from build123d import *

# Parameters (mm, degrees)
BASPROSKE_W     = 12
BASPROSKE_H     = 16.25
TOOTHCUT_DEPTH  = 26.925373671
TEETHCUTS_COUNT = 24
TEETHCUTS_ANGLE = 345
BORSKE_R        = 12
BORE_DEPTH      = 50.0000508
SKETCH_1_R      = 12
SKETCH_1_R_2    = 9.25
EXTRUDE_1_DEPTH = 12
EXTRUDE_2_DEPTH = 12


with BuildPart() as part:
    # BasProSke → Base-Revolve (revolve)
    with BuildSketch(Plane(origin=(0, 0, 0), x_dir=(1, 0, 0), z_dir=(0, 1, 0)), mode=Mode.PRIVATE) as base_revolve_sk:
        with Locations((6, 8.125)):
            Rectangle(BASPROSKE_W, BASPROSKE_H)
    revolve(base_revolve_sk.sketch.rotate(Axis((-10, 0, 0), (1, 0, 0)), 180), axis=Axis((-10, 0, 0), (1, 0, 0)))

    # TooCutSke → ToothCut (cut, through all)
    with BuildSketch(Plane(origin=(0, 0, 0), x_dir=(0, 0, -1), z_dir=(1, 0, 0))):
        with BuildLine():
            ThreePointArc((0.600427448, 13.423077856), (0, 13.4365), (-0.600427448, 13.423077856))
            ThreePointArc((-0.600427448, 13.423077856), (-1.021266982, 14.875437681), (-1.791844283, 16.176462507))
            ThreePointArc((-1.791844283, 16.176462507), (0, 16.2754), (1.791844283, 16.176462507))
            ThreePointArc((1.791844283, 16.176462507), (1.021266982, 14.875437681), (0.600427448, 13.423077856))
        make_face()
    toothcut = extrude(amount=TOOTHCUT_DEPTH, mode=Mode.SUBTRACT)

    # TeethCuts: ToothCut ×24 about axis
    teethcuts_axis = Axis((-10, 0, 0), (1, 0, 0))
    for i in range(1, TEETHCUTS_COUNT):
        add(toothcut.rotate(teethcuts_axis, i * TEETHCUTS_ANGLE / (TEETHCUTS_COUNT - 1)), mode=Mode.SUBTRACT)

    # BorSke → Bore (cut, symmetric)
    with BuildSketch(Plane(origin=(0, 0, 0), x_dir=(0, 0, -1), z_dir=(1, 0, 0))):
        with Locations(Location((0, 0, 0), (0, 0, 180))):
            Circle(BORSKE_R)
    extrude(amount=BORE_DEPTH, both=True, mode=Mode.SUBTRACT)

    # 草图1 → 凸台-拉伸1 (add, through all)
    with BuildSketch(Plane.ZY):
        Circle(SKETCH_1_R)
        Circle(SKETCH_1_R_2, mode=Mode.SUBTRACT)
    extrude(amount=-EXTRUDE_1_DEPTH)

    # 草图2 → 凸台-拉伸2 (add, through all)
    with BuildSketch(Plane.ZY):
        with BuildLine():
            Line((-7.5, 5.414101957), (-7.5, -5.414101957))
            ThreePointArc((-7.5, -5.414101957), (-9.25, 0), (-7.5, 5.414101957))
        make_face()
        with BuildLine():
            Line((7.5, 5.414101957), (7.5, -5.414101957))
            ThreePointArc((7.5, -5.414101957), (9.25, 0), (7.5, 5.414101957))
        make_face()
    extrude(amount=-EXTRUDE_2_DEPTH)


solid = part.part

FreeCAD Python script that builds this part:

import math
import FreeCAD as App
import Part
import Sketcher
from FreeCAD import Vector
Q = App.Units.Quantity

doc = App.newDocument("Part")
body = doc.addObject("PartDesign::Body", "Body")

sketch1 = doc.addObject("Sketcher::SketchObject", "Sketch")
body.addObject(sketch1)
sketch1.AttachmentSupport = (doc.XZ_Plane, [""])
sketch1.MapMode = "FlatFace"
sketch1.addGeometry([
    Part.LineSegment(Vector(0, -16, 0), Vector(0, 0, 0)),
    Part.LineSegment(Vector(0, 0, 0), Vector(12, 0, 0)),
    Part.LineSegment(Vector(12, 0, 0), Vector(12, -16, 0)),
    Part.LineSegment(Vector(12, -16, 0), Vector(0, -16, 0)),
], False)
sketch1.addConstraint([
    Sketcher.Constraint("Coincident", 0, 2, 1, 1),
    Sketcher.Constraint("Coincident", 1, 2, 2, 1),
    Sketcher.Constraint("Coincident", 2, 2, 3, 1),
    Sketcher.Constraint("Coincident", 3, 2, 0, 1),
    Sketcher.Constraint("Vertical", 0),
    Sketcher.Constraint("Horizontal", 1),
    Sketcher.Constraint("Vertical", 2),
    Sketcher.Constraint("Horizontal", 3),
    Sketcher.Constraint("Coincident", 0, 2, -1, 1),
    Sketcher.Constraint("DistanceX", 1, 1, 1, 2, Q("12 mm")),
    Sketcher.Constraint("DistanceY", 0, 1, 0, 2, Q("16.25 mm")),
])
revolution = doc.addObject("PartDesign::Revolution", "Revolution")
body.addObject(revolution)
revolution.Profile = sketch1
revolution.ReferenceAxis = (sketch1, ["H_Axis"])
revolution.Angle = 360

sketch2 = doc.addObject("Sketcher::SketchObject", "Sketch001")
body.addObject(sketch2)
sketch2.AttachmentSupport = (doc.YZ_Plane, [""])
sketch2.MapMode = "FlatFace"
sketch2.addGeometry([
    Part.ArcOfCircle(Part.Circle(Vector(0, 0, 0), Vector(0, 0, 1), 13.4), math.radians(-2.56), math.radians(2.56)),
    Part.ArcOfCircle(Part.Circle(Vector(12.5, -6.5, 0), Vector(0, 0, 1), 6), math.radians(52), math.radians(81)),
    Part.ArcOfCircle(Part.Circle(Vector(0, 0, 0), Vector(0, 0, 1), 16.3), math.radians(-6.32), math.radians(6.32)),
    Part.ArcOfCircle(Part.Circle(Vector(12.5, 6.5, 0), Vector(0, 0, 1), 6), math.radians(-81), math.radians(-52)),
], False)
sketch2.addConstraint([
    Sketcher.Constraint("Coincident", 0, 1, 1, 2),
    Sketcher.Constraint("Coincident", 1, 1, 2, 1),
    Sketcher.Constraint("Coincident", 2, 2, 3, 2),
    Sketcher.Constraint("Coincident", 3, 1, 0, 2),
    Sketcher.Constraint("Coincident", 0, 3, -1, 1),
    Sketcher.Constraint("Coincident", 2, 3, -1, 1),
    Sketcher.Constraint("Equal", 1, 3),
    Sketcher.Constraint("Symmetric", 1, 3, 3, 3, -1),
    Sketcher.Constraint("Radius", 1, Q("6 mm")),
    Sketcher.Constraint("Radius", 0, Q("13.4365 mm")),
    Sketcher.Constraint("Radius", 2, Q("16.2754 mm")),
    Sketcher.Constraint("DistanceY", 0, 1, 3, 3, Q("7.12828 mm")),
    Sketcher.Constraint("DistanceX", 1, 3, 1, 1, Q("3.683779 mm")),
])
pocket1 = doc.addObject("PartDesign::Pocket", "Pocket")
body.addObject(pocket1)
pocket1.Profile = sketch2
pocket1.Type = "ThroughAll"
pocket1.Reversed = True
doc.recompute()

polarpattern = doc.addObject("PartDesign::PolarPattern", "PolarPattern")
body.addObject(polarpattern)
polarpattern.Originals = [pocket1]
polarpattern.Axis = (doc.X_Axis, [""])
polarpattern.Angle = 360
polarpattern.Occurrences = 24
body.Tip = polarpattern

sketch3 = doc.addObject("Sketcher::SketchObject", "Sketch002")
body.addObject(sketch3)
sketch3.AttachmentSupport = (doc.YZ_Plane, [""])
sketch3.MapMode = "FlatFace"
sketch3.addGeometry(Part.Circle(Vector(0, 0, 0), Vector(0, 0, 1), 12), False)
sketch3.addConstraint([
    Sketcher.Constraint("Coincident", 0, 3, -1, 1),
    Sketcher.Constraint("Diameter", 0, Q("24 mm")),
])
pocket2 = doc.addObject("PartDesign::Pocket", "Pocket001")
body.addObject(pocket2)
pocket2.Profile = sketch3
pocket2.Length = 100.000102
pocket2.Midplane = True

sketch4 = doc.addObject("Sketcher::SketchObject", "Sketch003")
body.addObject(sketch4)
sketch4.AttachmentSupport = (doc.YZ_Plane, [""])
sketch4.MapMode = "FlatFace"
sketch4.addGeometry([
    Part.Circle(Vector(0, 0, 0), Vector(0, 0, 1), 12),
    Part.Circle(Vector(0, 0, 0), Vector(0, 0, 1), 9),
], False)
sketch4.addConstraint([
    Sketcher.Constraint("Coincident", 0, 3, -1, 1),
    Sketcher.Constraint("Coincident", 1, 3, -1, 1),
    Sketcher.Constraint("Diameter", 0, Q("24 mm")),
    Sketcher.Constraint("Diameter", 1, Q("18.5 mm")),
])
pad1 = doc.addObject("PartDesign::Pad", "Pad")
body.addObject(pad1)
pad1.Profile = sketch4
pad1.Length = 12

sketch5 = doc.addObject("Sketcher::SketchObject", "Sketch004")
body.addObject(sketch5)
sketch5.AttachmentSupport = (doc.YZ_Plane, [""])
sketch5.MapMode = "FlatFace"
sketch5.addGeometry([
    Part.LineSegment(Vector(-5, -8, 0), Vector(5, -8, 0)),
    Part.ArcOfCircle(Part.Circle(Vector(0, 0, 0), Vector(0, 0, 1), 9), math.radians(-126), math.radians(-54)),
    Part.LineSegment(Vector(5, 8, 0), Vector(-5, 8, 0)),
    Part.ArcOfCircle(Part.Circle(Vector(0, 0, 0), Vector(0, 0, 1), 9), math.radians(54), math.radians(126)),
], False)
sketch5.addConstraint([
    Sketcher.Constraint("Coincident", 0, 1, 1, 1),
    Sketcher.Constraint("Coincident", 1, 2, 0, 2),
    Sketcher.Constraint("Coincident", 2, 1, 3, 1),
    Sketcher.Constraint("Coincident", 3, 2, 2, 2),
    Sketcher.Constraint("Horizontal", 0),
    Sketcher.Constraint("Horizontal", 2),
    Sketcher.Constraint("Coincident", 1, 3, -1, 1),
    Sketcher.Constraint("Coincident", 3, 3, -1, 1),
    Sketcher.Constraint("Equal", 1, 3),
    Sketcher.Constraint("Vertical", 1, 2, 2, 1),
    Sketcher.Constraint("Radius", 1, Q("9.25 mm")),
    Sketcher.Constraint("DistanceY", 1, 2, 2, 1, Q("15 mm")),
])
pad2 = doc.addObject("PartDesign::Pad", "Pad001")
body.addObject(pad2)
pad2.Profile = sketch5
pad2.Length = 12

doc.recompute()
